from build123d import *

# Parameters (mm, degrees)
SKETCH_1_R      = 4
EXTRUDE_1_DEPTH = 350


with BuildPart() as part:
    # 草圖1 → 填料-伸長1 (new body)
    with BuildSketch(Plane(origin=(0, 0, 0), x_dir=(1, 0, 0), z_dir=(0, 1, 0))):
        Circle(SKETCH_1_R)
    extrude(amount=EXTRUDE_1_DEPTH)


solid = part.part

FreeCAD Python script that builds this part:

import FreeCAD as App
import Part
import Sketcher
from FreeCAD import Vector
Q = App.Units.Quantity

doc = App.newDocument("Part")
body = doc.addObject("PartDesign::Body", "Body")

sketch1 = doc.addObject("Sketcher::SketchObject", "Sketch")
body.addObject(sketch1)
sketch1.AttachmentSupport = (doc.XZ_Plane, [""])
sketch1.MapMode = "FlatFace"
sketch1.addGeometry(Part.Circle(Vector(0, 0, 0), Vector(0, 0, 1), 4), False)
sketch1.addConstraint([
    Sketcher.Constraint("Coincident", 0, 3, -1, 1),
    Sketcher.Constraint("Diameter", 0, Q("8 mm")),
])
pad1 = doc.addObject("PartDesign::Pad", "Pad")
body.addObject(pad1)
pad1.Profile = sketch1
pad1.Length = 350
pad1.Reversed = True

doc.recompute()
